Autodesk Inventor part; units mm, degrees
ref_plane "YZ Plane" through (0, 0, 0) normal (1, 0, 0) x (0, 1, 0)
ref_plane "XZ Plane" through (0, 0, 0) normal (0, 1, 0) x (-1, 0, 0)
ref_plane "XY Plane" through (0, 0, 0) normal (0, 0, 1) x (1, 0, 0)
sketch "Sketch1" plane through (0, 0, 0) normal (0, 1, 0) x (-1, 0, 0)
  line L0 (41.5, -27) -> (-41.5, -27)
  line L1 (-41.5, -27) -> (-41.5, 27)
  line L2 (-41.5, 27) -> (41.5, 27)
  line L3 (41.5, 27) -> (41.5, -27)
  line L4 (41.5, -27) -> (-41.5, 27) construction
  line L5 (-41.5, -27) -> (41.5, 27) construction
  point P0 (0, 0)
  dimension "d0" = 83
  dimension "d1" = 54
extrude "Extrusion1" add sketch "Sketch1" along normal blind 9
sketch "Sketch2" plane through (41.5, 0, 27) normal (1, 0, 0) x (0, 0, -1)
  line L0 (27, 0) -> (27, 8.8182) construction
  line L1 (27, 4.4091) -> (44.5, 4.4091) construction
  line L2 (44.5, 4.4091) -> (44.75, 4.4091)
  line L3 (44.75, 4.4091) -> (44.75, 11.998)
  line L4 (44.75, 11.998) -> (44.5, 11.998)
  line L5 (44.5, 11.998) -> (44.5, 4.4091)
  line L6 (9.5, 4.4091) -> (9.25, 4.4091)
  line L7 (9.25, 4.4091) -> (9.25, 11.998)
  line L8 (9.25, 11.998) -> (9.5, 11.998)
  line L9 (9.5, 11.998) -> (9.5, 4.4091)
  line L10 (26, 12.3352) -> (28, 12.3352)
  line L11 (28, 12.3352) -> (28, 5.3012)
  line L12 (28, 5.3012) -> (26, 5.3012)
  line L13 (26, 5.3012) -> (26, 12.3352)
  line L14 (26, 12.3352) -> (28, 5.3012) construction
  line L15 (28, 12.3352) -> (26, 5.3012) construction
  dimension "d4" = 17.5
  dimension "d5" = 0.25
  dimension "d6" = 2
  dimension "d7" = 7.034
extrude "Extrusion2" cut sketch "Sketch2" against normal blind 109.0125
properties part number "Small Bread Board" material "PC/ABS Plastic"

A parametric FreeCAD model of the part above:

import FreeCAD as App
import Part
import Sketcher

V = App.Vector


def add_polygon(sketch, points):
    """Adds a closed chain of lines whose ends are joined by coincident constraints."""
    first, n = sketch.GeometryCount, len(points)
    for a, b in zip(points, points[1:] + points[:1]):
        sketch.addGeometry(Part.LineSegment(App.Vector(*a, 0), App.Vector(*b, 0)), False)
    for i in range(n):
        sketch.addConstraint(Sketcher.Constraint("Coincident", first + i, 2, first + (i + 1) % n, 1))

doc = App.newDocument("Part")
body = doc.addObject("PartDesign::Body", "Body")

# Sketch on XZ plane
sketch1 = body.newObject("Sketcher::SketchObject", "Sketch")
sketch1.AttachmentSupport = (doc.getObject("XZ_Plane"), [""])
sketch1.MapMode = "FlatFace"
add_polygon(sketch1, [(41.5, -27), (-41.5, -27), (-41.5, 27), (41.5, 27)])  # lines 0-3
sketch1.addConstraint(Sketcher.Constraint("Horizontal", 0))
sketch1.addConstraint(Sketcher.Constraint("Vertical", 1))
sketch1.addConstraint(Sketcher.Constraint("Horizontal", 2))
sketch1.addConstraint(Sketcher.Constraint("Vertical", 3))
sketch1.addConstraint(Sketcher.Constraint("Symmetric", 0, 2, 2, 2, -1, 1))
sketch1.addConstraint(Sketcher.Constraint("DistanceX", 0, 2, 0, 1, 83.0))
sketch1.addConstraint(Sketcher.Constraint("DistanceY", 1, 1, 1, 2, 54.0))
pad1 = body.newObject("PartDesign::Pad", "Pad")
pad1.Profile = sketch1
pad1.Length = 9
pad1.Reversed = True

# Sketch on YZ plane
sketch2 = body.newObject("Sketcher::SketchObject", "Sketch001")
sketch2.AttachmentSupport = (doc.getObject("YZ_Plane"), [""])
sketch2.MapMode = "FlatFace"
sketch2.AttachmentOffset = App.Placement(V(0, 0, 41.5), App.Rotation())
add_polygon(sketch2, [(11.998, -17.5), (4.4091, -17.5), (4.4091, -17.75), (11.998, -17.75)])  # lines 0-3
add_polygon(sketch2, [(4.4091, 17.75), (4.4091, 17.5), (11.998, 17.5), (11.998, 17.75)])  # lines 4-7
add_polygon(sketch2, [(12.3352, -1), (12.3352, 1), (5.3012, 1), (5.3012, -1)])  # lines 8-11
sketch2.addConstraint(Sketcher.Constraint("Horizontal", 0))
sketch2.addConstraint(Sketcher.Constraint("Vertical", 1))
sketch2.addConstraint(Sketcher.Constraint("Horizontal", 2))
sketch2.addConstraint(Sketcher.Constraint("Vertical", 3))
sketch2.addConstraint(Sketcher.Constraint("Vertical", 4))
sketch2.addConstraint(Sketcher.Constraint("Horizontal", 5))
sketch2.addConstraint(Sketcher.Constraint("Vertical", 6))
sketch2.addConstraint(Sketcher.Constraint("Horizontal", 7))
sketch2.addConstraint(Sketcher.Constraint("Vertical", 8))
sketch2.addConstraint(Sketcher.Constraint("Horizontal", 9))
sketch2.addConstraint(Sketcher.Constraint("Vertical", 10))
sketch2.addConstraint(Sketcher.Constraint("Horizontal", 11))
sketch2.addConstraint(Sketcher.Constraint("Symmetric", 0, 2, 4, 2, -1))
sketch2.addConstraint(Sketcher.Constraint("Symmetric", 2, 2, 6, 2, -1))
sketch2.addConstraint(Sketcher.Constraint("DistanceY", 8, 1, 8, 2, 2.0))
sketch2.addConstraint(Sketcher.Constraint("DistanceY", 1, 2, 1, 1, 0.25))
sketch2.addConstraint(Sketcher.Constraint("DistanceY", 0, 2, -1, 1, 17.5))
sketch2.addConstraint(Sketcher.Constraint("DistanceX", 9, 2, 9, 1, 7.034))
sketch2.addConstraint(Sketcher.Constraint("DistanceY", -1, 1, 8, 2, 1.0))
sketch2.addConstraint(Sketcher.Constraint("DistanceX", 0, 2, 0, 1, 7.589))
sketch2.addConstraint(Sketcher.Constraint("DistanceX", -1, 1, 0, 2, 4.409))
sketch2.addConstraint(Sketcher.Constraint("DistanceX", 4, 2, 8, 2, 7.926))
pocket1 = body.newObject("PartDesign::Pocket", "Pocket")
pocket1.Profile = sketch2
pocket1.Length = 109.0125

doc.recompute()
